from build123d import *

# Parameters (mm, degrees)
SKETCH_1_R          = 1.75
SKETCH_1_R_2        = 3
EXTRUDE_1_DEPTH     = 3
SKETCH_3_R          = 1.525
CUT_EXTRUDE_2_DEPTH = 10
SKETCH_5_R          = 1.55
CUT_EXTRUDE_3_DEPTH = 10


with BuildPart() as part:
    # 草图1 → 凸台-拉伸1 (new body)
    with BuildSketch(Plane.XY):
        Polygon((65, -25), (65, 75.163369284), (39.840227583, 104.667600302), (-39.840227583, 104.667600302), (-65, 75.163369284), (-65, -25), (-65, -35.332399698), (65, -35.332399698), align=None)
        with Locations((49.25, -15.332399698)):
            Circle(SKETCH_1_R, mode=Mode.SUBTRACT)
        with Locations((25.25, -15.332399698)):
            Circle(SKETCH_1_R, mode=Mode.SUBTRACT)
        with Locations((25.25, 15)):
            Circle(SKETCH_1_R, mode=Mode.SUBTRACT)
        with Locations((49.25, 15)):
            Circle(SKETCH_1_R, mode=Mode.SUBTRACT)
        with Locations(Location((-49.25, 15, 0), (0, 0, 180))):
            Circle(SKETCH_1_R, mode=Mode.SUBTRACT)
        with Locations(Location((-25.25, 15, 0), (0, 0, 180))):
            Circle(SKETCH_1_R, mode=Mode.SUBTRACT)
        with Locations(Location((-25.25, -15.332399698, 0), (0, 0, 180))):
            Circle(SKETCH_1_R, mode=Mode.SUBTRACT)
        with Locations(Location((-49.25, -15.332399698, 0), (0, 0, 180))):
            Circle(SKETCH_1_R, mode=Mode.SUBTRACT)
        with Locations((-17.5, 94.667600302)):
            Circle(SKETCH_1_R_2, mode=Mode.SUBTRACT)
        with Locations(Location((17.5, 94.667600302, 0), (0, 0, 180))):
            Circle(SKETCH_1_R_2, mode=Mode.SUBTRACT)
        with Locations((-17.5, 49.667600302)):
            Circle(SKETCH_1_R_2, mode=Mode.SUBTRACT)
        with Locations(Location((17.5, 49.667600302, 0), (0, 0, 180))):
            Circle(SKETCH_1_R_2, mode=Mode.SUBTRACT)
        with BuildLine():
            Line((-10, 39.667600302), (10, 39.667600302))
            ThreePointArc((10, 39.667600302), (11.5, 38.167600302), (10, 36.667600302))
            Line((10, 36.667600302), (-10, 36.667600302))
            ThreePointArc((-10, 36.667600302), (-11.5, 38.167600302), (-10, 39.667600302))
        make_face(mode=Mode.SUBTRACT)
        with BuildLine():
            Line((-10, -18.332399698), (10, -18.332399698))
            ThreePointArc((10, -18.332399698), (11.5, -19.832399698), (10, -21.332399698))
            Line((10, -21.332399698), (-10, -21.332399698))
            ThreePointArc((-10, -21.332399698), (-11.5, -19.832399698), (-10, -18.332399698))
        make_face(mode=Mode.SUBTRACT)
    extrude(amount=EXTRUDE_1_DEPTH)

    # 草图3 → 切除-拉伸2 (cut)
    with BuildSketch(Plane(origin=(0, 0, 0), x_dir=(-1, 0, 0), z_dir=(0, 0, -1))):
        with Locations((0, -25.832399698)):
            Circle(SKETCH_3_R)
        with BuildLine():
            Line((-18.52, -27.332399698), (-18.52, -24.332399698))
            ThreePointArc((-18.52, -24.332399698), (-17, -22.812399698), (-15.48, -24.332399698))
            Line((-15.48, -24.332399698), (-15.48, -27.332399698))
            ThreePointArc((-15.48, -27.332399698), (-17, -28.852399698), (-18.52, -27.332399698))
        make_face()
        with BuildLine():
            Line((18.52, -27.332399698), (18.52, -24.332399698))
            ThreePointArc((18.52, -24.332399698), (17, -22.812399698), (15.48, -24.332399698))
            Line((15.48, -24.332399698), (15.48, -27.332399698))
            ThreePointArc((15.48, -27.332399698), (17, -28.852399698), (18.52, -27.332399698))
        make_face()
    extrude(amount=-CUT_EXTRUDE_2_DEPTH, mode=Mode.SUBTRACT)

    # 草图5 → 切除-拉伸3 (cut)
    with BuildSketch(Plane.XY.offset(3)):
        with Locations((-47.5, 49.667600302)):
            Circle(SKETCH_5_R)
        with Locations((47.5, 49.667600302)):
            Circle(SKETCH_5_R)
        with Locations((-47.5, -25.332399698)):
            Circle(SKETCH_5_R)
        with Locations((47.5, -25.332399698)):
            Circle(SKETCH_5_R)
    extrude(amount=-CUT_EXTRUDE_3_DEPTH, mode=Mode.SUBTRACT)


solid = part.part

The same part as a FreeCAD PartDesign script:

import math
import FreeCAD as App
import Part
import Sketcher

V = App.Vector
Q = App.Units.Quantity

doc = App.newDocument("Part")
params = doc.addObject("Spreadsheet::Sheet", "Params")
for row, (alias, value) in enumerate([
    ("sketch1_diameter", "6 mm"),
    ("sketch1_diameter2", "3.5 mm"),
    ("sketch1_radius", "1.5 mm"),
    ("sketch1_width", "130 mm"),
    ("sketch1_width2", "20 mm"),
    ("pad1_length", "3 mm"),
    ("sketch2_diameter", "3.05 mm"),
    ("sketch2_height", "3 mm"),
    ("sketch2_radius", "1.52 mm"),
    ("pocket1_length", "10 mm"),
    ("sketch3_diameter", "3.1 mm"),
    ("pocket2_length", "10 mm"),
], start=1):
    params.set(f"A{row}", alias)
    params.set(f"B{row}", "=" + value)
    params.setAlias(f"B{row}", alias)

body = doc.addObject("PartDesign::Body", "Body")

sketch1 = doc.addObject("Sketcher::SketchObject", "Sketch")
body.addObject(sketch1)
sketch1.AttachmentSupport = (doc.XY_Plane, [""])
sketch1.MapMode = "FlatFace"
sketch1.addGeometry([
    Part.LineSegment(V(65, 75.2, 0), V(39.8, 104.7, 0)),
    Part.LineSegment(V(39.8, 104.7, 0), V(-39.8, 104.7, 0)),
    Part.LineSegment(V(-39.8, 104.7, 0), V(-65, 75.2, 0)),
    Part.LineSegment(V(-65, 75.2, 0), V(-65, -35.3, 0)),
    Part.LineSegment(V(-65, -35.3, 0), V(65, -35.3, 0)),
    Part.LineSegment(V(65, -35.3, 0), V(65, 75.2, 0)),
    Part.Circle(V(-49.2, -15.3, 0), V(0, 0, 1), 1.8),
    Part.Circle(V(-25.2, -15.3, 0), V(0, 0, 1), 1.8),
    Part.Circle(V(-49.2, 15, 0), V(0, 0, 1), 1.8),
    Part.Circle(V(-25.2, 15, 0), V(0, 0, 1), 1.8),
    Part.ArcOfCircle(Part.Circle(V(-10, -19.8, 0), V(0, 0, 1), 1.5), math.radians(90), math.radians(270)),
    Part.LineSegment(V(-10, -18.3, 0), V(10, -18.3, 0)),
    Part.ArcOfCircle(Part.Circle(V(10, -19.8, 0), V(0, 0, 1), 1.5), math.radians(-90), math.radians(90)),
    Part.LineSegment(V(10, -21.3, 0), V(-10, -21.3, 0)),
    Part.Circle(V(25.2, -15.3, 0), V(0, 0, 1), 1.8),
    Part.Circle(V(49.2, -15.3, 0), V(0, 0, 1), 1.8),
    Part.Circle(V(25.2, 15, 0), V(0, 0, 1), 1.8),
    Part.Circle(V(49.2, 15, 0), V(0, 0, 1), 1.8),
    Part.Circle(V(-17.5, 49.7, 0), V(0, 0, 1), 3),
    Part.Circle(V(-17.5, 94.7, 0), V(0, 0, 1), 3),
    Part.ArcOfCircle(Part.Circle(V(-10, 38.2, 0), V(0, 0, 1), 1.5), math.radians(90), math.radians(270)),
    Part.LineSegment(V(-10, 39.7, 0), V(10, 39.7, 0)),
    Part.ArcOfCircle(Part.Circle(V(10, 38.2, 0), V(0, 0, 1), 1.5), math.radians(-90), math.radians(90)),
    Part.LineSegment(V(10, 36.7, 0), V(-10, 36.7, 0)),
    Part.Circle(V(17.5, 49.7, 0), V(0, 0, 1), 3),
    Part.Circle(V(17.5, 94.7, 0), V(0, 0, 1), 3),
], False)
sketch1.addConstraint([
    Sketcher.Constraint("Coincident", 0, 2, 1, 1),
    Sketcher.Constraint("Coincident", 1, 2, 2, 1),
    Sketcher.Constraint("Coincident", 2, 2, 3, 1),
    Sketcher.Constraint("Coincident", 3, 2, 4, 1),
    Sketcher.Constraint("Coincident", 4, 2, 5, 1),
    Sketcher.Constraint("Coincident", 5, 2, 0, 1),
    Sketcher.Constraint("Tangent", 10, 1, 11, 1),
    Sketcher.Constraint("Tangent", 11, 2, 12, 2),
    Sketcher.Constraint("Tangent", 12, 1, 13, 1),
    Sketcher.Constraint("Tangent", 13, 2, 10, 2),
    Sketcher.Constraint("Tangent", 20, 1, 21, 1),
    Sketcher.Constraint("Tangent", 21, 2, 22, 2),
    Sketcher.Constraint("Tangent", 22, 1, 23, 1),
    Sketcher.Constraint("Tangent", 23, 2, 20, 2),
    Sketcher.Constraint("Horizontal", 1),
    Sketcher.Constraint("Vertical", 3),
    Sketcher.Constraint("Horizontal", 4),
    Sketcher.Constraint("Vertical", 5),
    Sketcher.Constraint("Horizontal", 11),
    Sketcher.Constraint("Horizontal", 13),
    Sketcher.Constraint("Horizontal", 21),
    Sketcher.Constraint("Horizontal", 23),
    Sketcher.Constraint("Equal", 6, 7),
    Sketcher.Constraint("Equal", 7, 8),
    Sketcher.Constraint("Equal", 8, 9),
    Sketcher.Constraint("Equal", 9, 14),
    Sketcher.Constraint("Equal", 14, 15),
    Sketcher.Constraint("Equal", 15, 16),
    Sketcher.Constraint("Equal", 16, 17),
    Sketcher.Constraint("Equal", 18, 19),
    Sketcher.Constraint("Equal", 12, 20),
    Sketcher.Constraint("Equal", 19, 24),
    Sketcher.Constraint("Equal", 24, 25),
    Sketcher.Constraint("Symmetric", 7, 3, 14, 3, -2),
    Sketcher.Constraint("Symmetric", 6, 3, 15, 3, -2),
    Sketcher.Constraint("Symmetric", 9, 3, 16, 3, -2),
    Sketcher.Constraint("Symmetric", 8, 3, 17, 3, -2),
    Sketcher.Constraint("Symmetric", 18, 3, 24, 3, -2),
    Sketcher.Constraint("Symmetric", 19, 3, 25, 3, -2),
    Sketcher.Constraint("Symmetric", 2, 2, 5, 2, -2),
    Sketcher.Constraint("Horizontal", 6, 3, 7, 3),
    Sketcher.Constraint("Horizontal", 8, 3, 9, 3),
    Sketcher.Constraint("Vertical", 6, 3, 8, 3),
    Sketcher.Constraint("Vertical", 7, 3, 9, 3),
    Sketcher.Constraint("Vertical", 18, 3, 19, 3),
    Sketcher.Constraint("Vertical", 10, 3, 20, 3),
    Sketcher.Constraint("Vertical", 12, 3, 22, 3),
    Sketcher.Constraint("Equal", 0, 2),
    Sketcher.Constraint("Diameter", 18, Q("6 mm")),
    Sketcher.Constraint("Diameter", 6, Q("3.5 mm")),
    Sketcher.Constraint("Radius", 10, Q("1.5 mm")),
    Sketcher.Constraint("DistanceX", 4, 1, 4, 2, Q("130 mm")),
    Sketcher.Constraint("DistanceX", 11, 1, 11, 2, Q("20 mm")),
    Sketcher.Constraint("DistanceY", -1, 1, 8, 3, Q("15 mm")),
    Sketcher.Constraint("DistanceX", 10, 3, -1, 1, Q("10 mm")),
    Sketcher.Constraint("DistanceX", 6, 3, 7, 3, Q("24 mm")),
    Sketcher.Constraint("DistanceY", 7, 3, 18, 3, Q("65 mm")),
    Sketcher.Constraint("DistanceY", 18, 3, 19, 3, Q("45 mm")),
    Sketcher.Constraint("DistanceX", 18, 3, 24, 3, Q("35 mm")),
    Sketcher.Constraint("DistanceY", 25, 3, 0, 2, Q("10 mm")),
    Sketcher.Constraint("DistanceY", 3, 2, 6, 3, Q("20 mm")),
    Sketcher.Constraint("DistanceY", 10, 1, 7, 3, Q("3 mm")),
    Sketcher.Constraint("DistanceY", 20, 1, 18, 3, Q("10 mm")),
    Sketcher.Constraint("DistanceX", 7, 3, 14, 3, Q("50.5 mm")),
    Sketcher.Constraint("DistanceY", 3, 2, 3, 1, Q("110.495769 mm")),
    Sketcher.Constraint("DistanceY", 6, 3, -1, 1, Q("15.3324 mm")),
    Sketcher.Constraint("Distance", 0, Q("38.77517 mm")),
])
sketch1.setExpression("Constraints[48]", "Params.sketch1_diameter")
sketch1.setExpression("Constraints[49]", "Params.sketch1_diameter2")
sketch1.setExpression("Constraints[50]", "Params.sketch1_radius")
sketch1.setExpression("Constraints[51]", "Params.sketch1_width")
sketch1.setExpression("Constraints[52]", "Params.sketch1_width2")
pad1 = doc.addObject("PartDesign::Pad", "Pad")
body.addObject(pad1)
pad1.Profile = sketch1
pad1.setExpression("Length", "Params.pad1_length")

sketch2 = doc.addObject("Sketcher::SketchObject", "Sketch001")
body.addObject(sketch2)
sketch2.AttachmentSupport = (doc.XY_Plane, [""])
sketch2.MapMode = "FlatFace"
sketch2.addGeometry([
    Part.Circle(V(0, -25.8, 0), V(0, 0, 1), 1.5),
    Part.LineSegment(V(18.5, -24.3, 0), V(18.5, -27.3, 0)),
    Part.ArcOfCircle(Part.Circle(V(17, -27.3, 0), V(0, 0, 1), 1.5), math.radians(180), math.radians(360)),
    Part.LineSegment(V(15.5, -27.3, 0), V(15.5, -24.3, 0)),
    Part.ArcOfCircle(Part.Circle(V(17, -24.3, 0), V(0, 0, 1), 1.5), math.radians(0), math.radians(180)),
    Part.LineSegment(V(-18.5, -27.3, 0), V(-18.5, -24.3, 0)),
    Part.ArcOfCircle(Part.Circle(V(-17, -24.3, 0), V(0, 0, 1), 1.5), math.radians(0), math.radians(180)),
    Part.LineSegment(V(-15.5, -24.3, 0), V(-15.5, -27.3, 0)),
    Part.ArcOfCircle(Part.Circle(V(-17, -27.3, 0), V(0, 0, 1), 1.5), math.radians(180), math.radians(360)),
], False)
sketch2.addConstraint([
    Sketcher.Constraint("Tangent", 1, 2, 2, 2),
    Sketcher.Constraint("Tangent", 2, 1, 3, 1),
    Sketcher.Constraint("Tangent", 3, 2, 4, 2),
    Sketcher.Constraint("Tangent", 4, 1, 1, 1),
    Sketcher.Constraint("Tangent", 5, 2, 6, 2),
    Sketcher.Constraint("Tangent", 6, 1, 7, 1),
    Sketcher.Constraint("Tangent", 7, 2, 8, 2),
    Sketcher.Constraint("Tangent", 8, 1, 5, 1),
    Sketcher.Constraint("Vertical", 1),
    Sketcher.Constraint("Vertical", 3),
    Sketcher.Constraint("Vertical", 5),
    Sketcher.Constraint("Vertical", 7),
    Sketcher.Constraint("Equal", 4, 6),
    Sketcher.Constraint("Symmetric", 4, 3, 6, 3, -2),
    Sketcher.Constraint("PointOnObject", 0, 3, -2),
    Sketcher.Constraint("Horizontal", 2, 3, 8, 3),
    Sketcher.Constraint("Diameter", 0, Q("3.05 mm")),
    Sketcher.Constraint("DistanceY", 1, 2, 1, 1, Q("3 mm")),
    Sketcher.Constraint("Radius", 2, Q("1.52 mm")),
    Sketcher.Constraint("DistanceX", -1, 1, 2, 3, Q("17 mm")),
    Sketcher.Constraint("DistanceY", 2, 3, 0, 3, Q("1.5 mm")),
    Sketcher.Constraint("DistanceY", 0, 3, -1, 1, Q("25.8324 mm")),
])
sketch2.setExpression("Constraints[16]", "Params.sketch2_diameter")
sketch2.setExpression("Constraints[17]", "Params.sketch2_height")
sketch2.setExpression("Constraints[18]", "Params.sketch2_radius")
pocket1 = doc.addObject("PartDesign::Pocket", "Pocket")
body.addObject(pocket1)
pocket1.Profile = sketch2
pocket1.setExpression("Length", "Params.pocket1_length")
pocket1.Reversed = True

sketch3 = doc.addObject("Sketcher::SketchObject", "Sketch002")
body.addObject(sketch3)
sketch3.AttachmentSupport = (doc.XY_Plane, [""])
sketch3.MapMode = "FlatFace"
sketch3.AttachmentOffset = App.Placement(V(0, 0, 3), App.Rotation())
sketch3.addGeometry([
    Part.Circle(V(-47.5, 49.7, 0), V(0, 0, 1), 1.6),
    Part.Circle(V(47.5, 49.7, 0), V(0, 0, 1), 1.6),
    Part.Circle(V(-47.5, -25.3, 0), V(0, 0, 1), 1.6),
    Part.Circle(V(47.5, -25.3, 0), V(0, 0, 1), 1.6),
], False)
sketch3.addConstraint([
    Sketcher.Constraint("Equal", 0, 1),
    Sketcher.Constraint("Equal", 1, 2),
    Sketcher.Constraint("Equal", 2, 3),
    Sketcher.Constraint("Symmetric", 0, 3, 1, 3, -2),
    Sketcher.Constraint("Symmetric", 2, 3, 3, 3, -2),
    Sketcher.Constraint("Vertical", 0, 3, 2, 3),
    Sketcher.Constraint("Diameter", 0, Q("3.1 mm")),
    Sketcher.Constraint("DistanceX", 0, 3, 1, 3, Q("95 mm")),
    Sketcher.Constraint("DistanceY", 2, 3, 0, 3, Q("75 mm")),
    Sketcher.Constraint("DistanceY", -1, 1, 0, 3, Q("49.6676 mm")),
])
sketch3.setExpression("Constraints[6]", "Params.sketch3_diameter")
pocket2 = doc.addObject("PartDesign::Pocket", "Pocket001")
body.addObject(pocket2)
pocket2.Profile = sketch3
pocket2.setExpression("Length", "Params.pocket2_length")

doc.recompute()
